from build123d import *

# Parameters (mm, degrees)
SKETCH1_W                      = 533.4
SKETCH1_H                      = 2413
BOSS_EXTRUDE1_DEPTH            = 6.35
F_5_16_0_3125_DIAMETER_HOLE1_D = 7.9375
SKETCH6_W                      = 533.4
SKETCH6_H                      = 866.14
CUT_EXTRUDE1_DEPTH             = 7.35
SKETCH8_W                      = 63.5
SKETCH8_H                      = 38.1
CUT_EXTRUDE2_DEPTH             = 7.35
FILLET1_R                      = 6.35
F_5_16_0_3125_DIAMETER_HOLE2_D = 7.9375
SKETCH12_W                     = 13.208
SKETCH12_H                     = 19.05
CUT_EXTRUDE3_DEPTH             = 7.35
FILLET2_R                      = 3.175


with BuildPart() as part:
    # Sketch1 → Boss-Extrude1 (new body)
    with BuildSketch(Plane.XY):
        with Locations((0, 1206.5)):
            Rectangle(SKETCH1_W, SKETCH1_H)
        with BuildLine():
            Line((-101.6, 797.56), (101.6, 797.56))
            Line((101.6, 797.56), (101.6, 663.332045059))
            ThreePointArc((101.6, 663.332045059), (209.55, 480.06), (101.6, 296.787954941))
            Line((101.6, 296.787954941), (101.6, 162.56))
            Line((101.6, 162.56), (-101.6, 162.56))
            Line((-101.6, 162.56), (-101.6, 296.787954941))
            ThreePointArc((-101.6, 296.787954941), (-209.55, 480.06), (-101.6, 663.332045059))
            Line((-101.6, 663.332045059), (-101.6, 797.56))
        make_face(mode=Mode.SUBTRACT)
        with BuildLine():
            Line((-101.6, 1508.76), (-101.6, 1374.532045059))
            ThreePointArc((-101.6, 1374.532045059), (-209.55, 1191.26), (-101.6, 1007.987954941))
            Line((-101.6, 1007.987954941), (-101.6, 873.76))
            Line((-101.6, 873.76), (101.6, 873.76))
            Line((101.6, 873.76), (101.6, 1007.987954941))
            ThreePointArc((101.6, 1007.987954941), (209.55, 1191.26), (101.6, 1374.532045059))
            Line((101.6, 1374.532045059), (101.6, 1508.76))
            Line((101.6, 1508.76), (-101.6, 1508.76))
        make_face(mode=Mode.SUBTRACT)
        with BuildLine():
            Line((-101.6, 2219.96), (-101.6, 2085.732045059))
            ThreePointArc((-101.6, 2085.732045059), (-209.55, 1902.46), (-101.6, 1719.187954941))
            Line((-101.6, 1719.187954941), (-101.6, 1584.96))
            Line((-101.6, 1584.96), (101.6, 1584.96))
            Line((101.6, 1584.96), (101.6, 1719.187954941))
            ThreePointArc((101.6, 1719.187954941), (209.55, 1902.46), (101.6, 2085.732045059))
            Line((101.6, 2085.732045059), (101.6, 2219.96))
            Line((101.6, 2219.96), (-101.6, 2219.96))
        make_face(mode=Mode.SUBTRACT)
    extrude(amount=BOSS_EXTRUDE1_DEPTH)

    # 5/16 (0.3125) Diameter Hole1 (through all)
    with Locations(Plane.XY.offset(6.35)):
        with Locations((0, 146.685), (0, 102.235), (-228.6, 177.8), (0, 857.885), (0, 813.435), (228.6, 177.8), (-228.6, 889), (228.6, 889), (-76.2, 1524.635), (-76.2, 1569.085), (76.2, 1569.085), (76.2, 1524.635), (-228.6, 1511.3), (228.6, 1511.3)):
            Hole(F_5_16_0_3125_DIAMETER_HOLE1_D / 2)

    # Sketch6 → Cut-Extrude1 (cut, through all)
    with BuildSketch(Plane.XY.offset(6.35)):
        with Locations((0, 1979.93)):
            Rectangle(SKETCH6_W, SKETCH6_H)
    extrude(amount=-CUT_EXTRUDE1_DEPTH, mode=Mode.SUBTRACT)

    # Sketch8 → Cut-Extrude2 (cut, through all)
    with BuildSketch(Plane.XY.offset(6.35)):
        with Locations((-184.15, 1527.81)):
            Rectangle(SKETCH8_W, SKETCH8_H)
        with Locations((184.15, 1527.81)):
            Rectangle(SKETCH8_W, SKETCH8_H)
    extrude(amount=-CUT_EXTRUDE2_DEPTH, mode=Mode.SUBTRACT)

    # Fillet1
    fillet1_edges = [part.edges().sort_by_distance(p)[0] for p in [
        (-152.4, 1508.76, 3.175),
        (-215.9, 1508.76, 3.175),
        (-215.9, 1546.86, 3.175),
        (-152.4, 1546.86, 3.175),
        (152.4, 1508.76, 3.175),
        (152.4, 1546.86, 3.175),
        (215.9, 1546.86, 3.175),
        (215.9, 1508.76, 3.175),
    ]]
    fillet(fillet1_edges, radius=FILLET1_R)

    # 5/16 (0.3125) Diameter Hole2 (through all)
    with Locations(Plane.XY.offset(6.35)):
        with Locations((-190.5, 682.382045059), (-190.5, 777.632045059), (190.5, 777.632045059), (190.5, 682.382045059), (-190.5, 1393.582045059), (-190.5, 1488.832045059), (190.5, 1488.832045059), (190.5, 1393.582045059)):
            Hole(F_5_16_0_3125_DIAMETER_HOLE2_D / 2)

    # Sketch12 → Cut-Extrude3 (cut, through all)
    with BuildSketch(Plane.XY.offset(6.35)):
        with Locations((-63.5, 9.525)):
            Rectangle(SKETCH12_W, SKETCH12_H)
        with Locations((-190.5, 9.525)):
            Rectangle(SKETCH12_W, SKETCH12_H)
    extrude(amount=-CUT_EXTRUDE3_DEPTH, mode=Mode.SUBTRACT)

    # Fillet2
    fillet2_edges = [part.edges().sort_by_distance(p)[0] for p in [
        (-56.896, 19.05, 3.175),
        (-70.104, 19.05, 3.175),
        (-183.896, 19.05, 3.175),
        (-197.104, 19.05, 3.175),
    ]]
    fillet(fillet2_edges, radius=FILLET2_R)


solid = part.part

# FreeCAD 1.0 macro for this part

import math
import FreeCAD as App
import Part
import Sketcher

V = App.Vector
Q = App.Units.Quantity


def edges_at(feature, points):
    """Names of the edges that pass closest to the given points."""
    edges = feature.Shape.Edges
    near = lambda p: min(range(len(edges)), key=lambda i: edges[i].distToShape(Part.Vertex(*p))[0])
    return sorted({f"Edge{near(p) + 1}" for p in points})

doc = App.newDocument("Part")
body = doc.addObject("PartDesign::Body", "Body")

# Sketch on XY plane
sketch1 = body.newObject("Sketcher::SketchObject", "Sketch")
sketch1.AttachmentSupport = (doc.getObject("XY_Plane"), [""])
sketch1.MapMode = "FlatFace"
sketch1.addGeometry([
    Part.LineSegment(V(-267, 2413, 0), V(-267, 0, 0)),  # 0
    Part.LineSegment(V(-267, 0, 0), V(267, 0, 0)),  # 1
    Part.LineSegment(V(267, 0, 0), V(267, 2413, 0)),  # 2
    Part.LineSegment(V(267, 2413, 0), V(-267, 2413, 0)),  # 3
    Part.LineSegment(V(-102, 663, 0), V(-102, 798, 0)),  # 4
    Part.LineSegment(V(-102, 798, 0), V(102, 798, 0)),  # 5
    Part.LineSegment(V(102, 798, 0), V(102, 663, 0)),  # 6
    Part.ArcOfCircle(Part.Circle(V(0, 480, 0), V(0, 0, 1), 210), math.radians(-61), math.radians(61)),  # 7
    Part.LineSegment(V(102, 297, 0), V(102, 163, 0)),  # 8
    Part.LineSegment(V(102, 163, 0), V(-102, 163, 0)),  # 9
    Part.LineSegment(V(-102, 163, 0), V(-102, 297, 0)),  # 10
    Part.ArcOfCircle(Part.Circle(V(0, 480, 0), V(0, 0, 1), 210), math.radians(119), math.radians(241)),  # 11
    Part.LineSegment(V(-102, 1375, 0), V(-102, 1509, 0)),  # 12
    Part.LineSegment(V(-102, 1509, 0), V(102, 1509, 0)),  # 13
    Part.LineSegment(V(102, 1509, 0), V(102, 1375, 0)),  # 14
    Part.ArcOfCircle(Part.Circle(V(0, 1191, 0), V(0, 0, 1), 210), math.radians(-61), math.radians(61)),  # 15
    Part.LineSegment(V(102, 1008, 0), V(102, 874, 0)),  # 16
    Part.LineSegment(V(102, 874, 0), V(-102, 874, 0)),  # 17
    Part.LineSegment(V(-102, 874, 0), V(-102, 1008, 0)),  # 18
    Part.ArcOfCircle(Part.Circle(V(0, 1191, 0), V(0, 0, 1), 210), math.radians(119), math.radians(241)),  # 19
    Part.LineSegment(V(-102, 2086, 0), V(-102, 2220, 0)),  # 20
    Part.LineSegment(V(-102, 2220, 0), V(102, 2220, 0)),  # 21
    Part.LineSegment(V(102, 2220, 0), V(102, 2086, 0)),  # 22
    Part.ArcOfCircle(Part.Circle(V(0, 1902, 0), V(0, 0, 1), 210), math.radians(-61), math.radians(61)),  # 23
    Part.LineSegment(V(102, 1719, 0), V(102, 1585, 0)),  # 24
    Part.LineSegment(V(102, 1585, 0), V(-102, 1585, 0)),  # 25
    Part.LineSegment(V(-102, 1585, 0), V(-102, 1719, 0)),  # 26
    Part.ArcOfCircle(Part.Circle(V(0, 1902, 0), V(0, 0, 1), 210), math.radians(119), math.radians(241)),  # 27
], False)
sketch1.addConstraint([
    Sketcher.Constraint("Coincident", 0, 2, 1, 1),
    Sketcher.Constraint("Coincident", 1, 2, 2, 1),
    Sketcher.Constraint("Coincident", 2, 2, 3, 1),
    Sketcher.Constraint("Coincident", 3, 2, 0, 1),
    Sketcher.Constraint("Coincident", 4, 2, 5, 1),
    Sketcher.Constraint("Coincident", 5, 2, 6, 1),
    Sketcher.Constraint("Coincident", 6, 2, 7, 2),
    Sketcher.Constraint("Coincident", 7, 1, 8, 1),
    Sketcher.Constraint("Coincident", 8, 2, 9, 1),
    Sketcher.Constraint("Coincident", 9, 2, 10, 1),
    Sketcher.Constraint("Coincident", 10, 2, 11, 2),
    Sketcher.Constraint("Coincident", 11, 1, 4, 1),
    Sketcher.Constraint("Coincident", 12, 2, 13, 1),
    Sketcher.Constraint("Coincident", 13, 2, 14, 1),
    Sketcher.Constraint("Coincident", 14, 2, 15, 2),
    Sketcher.Constraint("Coincident", 15, 1, 16, 1),
    Sketcher.Constraint("Coincident", 16, 2, 17, 1),
    Sketcher.Constraint("Coincident", 17, 2, 18, 1),
    Sketcher.Constraint("Coincident", 18, 2, 19, 2),
    Sketcher.Constraint("Coincident", 19, 1, 12, 1),
    Sketcher.Constraint("Coincident", 20, 2, 21, 1),
    Sketcher.Constraint("Coincident", 21, 2, 22, 1),
    Sketcher.Constraint("Coincident", 22, 2, 23, 2),
    Sketcher.Constraint("Coincident", 23, 1, 24, 1),
    Sketcher.Constraint("Coincident", 24, 2, 25, 1),
    Sketcher.Constraint("Coincident", 25, 2, 26, 1),
    Sketcher.Constraint("Coincident", 26, 2, 27, 2),
    Sketcher.Constraint("Coincident", 27, 1, 20, 1),
    Sketcher.Constraint("Vertical", 0),
    Sketcher.Constraint("Horizontal", 1),
    Sketcher.Constraint("Vertical", 2),
    Sketcher.Constraint("Horizontal", 3),
    Sketcher.Constraint("Vertical", 4),
    Sketcher.Constraint("Horizontal", 5),
    Sketcher.Constraint("Vertical", 6),
    Sketcher.Constraint("Vertical", 8),
    Sketcher.Constraint("Horizontal", 9),
    Sketcher.Constraint("Vertical", 10),
    Sketcher.Constraint("Vertical", 12),
    Sketcher.Constraint("Horizontal", 13),
    Sketcher.Constraint("Vertical", 14),
    Sketcher.Constraint("Vertical", 16),
    Sketcher.Constraint("Horizontal", 17),
    Sketcher.Constraint("Vertical", 18),
    Sketcher.Constraint("Vertical", 20),
    Sketcher.Constraint("Horizontal", 21),
    Sketcher.Constraint("Vertical", 22),
    Sketcher.Constraint("Vertical", 24),
    Sketcher.Constraint("Horizontal", 25),
    Sketcher.Constraint("Vertical", 26),
    Sketcher.Constraint("Coincident", 11, 3, 7, 3),
    Sketcher.Constraint("Coincident", 19, 3, 15, 3),
    Sketcher.Constraint("Coincident", 27, 3, 23, 3),
    Sketcher.Constraint("Equal", 7, 11),
    Sketcher.Constraint("Equal", 11, 15),
    Sketcher.Constraint("Equal", 15, 19),
    Sketcher.Constraint("Equal", 19, 23),
    Sketcher.Constraint("Equal", 23, 27),
    Sketcher.Constraint("Symmetric", 0, 2, 1, 2, -1, 1),
    Sketcher.Constraint("Symmetric", 7, 1, 10, 2, -2),
    Sketcher.Constraint("Symmetric", 15, 1, 18, 2, -2),
    Sketcher.Constraint("Symmetric", 23, 1, 26, 2, -2),
    Sketcher.Constraint("Horizontal", 6, 2, 11, 1),
    Sketcher.Constraint("Horizontal", 14, 2, 19, 1),
    Sketcher.Constraint("Horizontal", 22, 2, 27, 1),
    Sketcher.Constraint("Vertical", 6, 2, 7, 1),
    Sketcher.Constraint("Vertical", 11, 1, 12, 2),
    Sketcher.Constraint("Vertical", 14, 2, 15, 1),
    Sketcher.Constraint("Vertical", 19, 1, 20, 2),
    Sketcher.Constraint("Vertical", 22, 2, 23, 1),
    Sketcher.Constraint("Equal", 6, 8),
    Sketcher.Constraint("Equal", 10, 12),
    Sketcher.Constraint("Equal", 14, 16),
    Sketcher.Constraint("Equal", 18, 20),
    Sketcher.Constraint("Equal", 22, 24),
    Sketcher.Constraint("DistanceX", 1, 1, 1, 2, Q("21 in")),
    Sketcher.Constraint("DistanceX", 5, 1, 5, 2, Q("8 in")),
    Sketcher.Constraint("DistanceY", 0, 2, 0, 1, Q("95 in")),
    Sketcher.Constraint("Radius", 7, Q("8.25 in")),
    Sketcher.Constraint("DistanceY", 7, 3, 15, 3, Q("28 in")),
    Sketcher.Constraint("DistanceY", 15, 3, 23, 3, Q("28 in")),
    Sketcher.Constraint("DistanceY", 5, 2, 16, 2, Q("3 in")),
    Sketcher.Constraint("DistanceY", -1, 1, 7, 3, Q("18.9 in")),
])
pad1 = body.newObject("PartDesign::Pad", "Pad")
pad1.Profile = sketch1
pad1.Length = Q("0.25 in")

# Sketch on XY plane
sketch2 = body.newObject("Sketcher::SketchObject", "Sketch001")
sketch2.AttachmentSupport = (doc.getObject("XY_Plane"), [""])
sketch2.MapMode = "FlatFace"
sketch2.AttachmentOffset = App.Placement(V(0, 0, 0.25 * 25.4), App.Rotation())
sketch2.addGeometry([
    Part.Circle(V(0, 146.7, 0), V(0, 0, 1), 4),  # 0
    Part.Circle(V(0, 102.2, 0), V(0, 0, 1), 4),  # 1
    Part.Circle(V(-228.6, 177.8, 0), V(0, 0, 1), 4),  # 2
    Part.Circle(V(0, 857.9, 0), V(0, 0, 1), 4),  # 3
    Part.Circle(V(0, 813.4, 0), V(0, 0, 1), 4),  # 4
    Part.Circle(V(228.6, 177.8, 0), V(0, 0, 1), 4),  # 5
    Part.Circle(V(-228.6, 889, 0), V(0, 0, 1), 4),  # 6
    Part.Circle(V(228.6, 889, 0), V(0, 0, 1), 4),  # 7
    Part.Circle(V(-76.2, 1524.6, 0), V(0, 0, 1), 4),  # 8
    Part.Circle(V(-76.2, 1569.1, 0), V(0, 0, 1), 4),  # 9
    Part.Circle(V(76.2, 1569.1, 0), V(0, 0, 1), 4),  # 10
    Part.Circle(V(76.2, 1524.6, 0), V(0, 0, 1), 4),  # 11
    Part.Circle(V(-228.6, 1511.3, 0), V(0, 0, 1), 4),  # 12
    Part.Circle(V(228.6, 1511.3, 0), V(0, 0, 1), 4),  # 13
], False)
sketch2.addConstraint([
    Sketcher.Constraint("Equal", 0, 1),
    Sketcher.Constraint("Equal", 1, 2),
    Sketcher.Constraint("Equal", 2, 3),
    Sketcher.Constraint("Equal", 3, 4),
    Sketcher.Constraint("Equal", 4, 5),
    Sketcher.Constraint("Equal", 5, 6),
    Sketcher.Constraint("Equal", 6, 7),
    Sketcher.Constraint("Equal", 7, 8),
    Sketcher.Constraint("Equal", 8, 9),
    Sketcher.Constraint("Equal", 9, 10),
    Sketcher.Constraint("Equal", 10, 11),
    Sketcher.Constraint("Equal", 11, 12),
    Sketcher.Constraint("Equal", 12, 13),
    Sketcher.Constraint("Symmetric", 2, 3, 5, 3, -2),
    Sketcher.Constraint("Symmetric", 6, 3, 7, 3, -2),
    Sketcher.Constraint("Symmetric", 9, 3, 10, 3, -2),
    Sketcher.Constraint("Symmetric", 8, 3, 11, 3, -2),
    Sketcher.Constraint("Symmetric", 12, 3, 13, 3, -2),
    Sketcher.Constraint("PointOnObject", 0, 3, -2),
    Sketcher.Constraint("PointOnObject", 1, 3, -2),
    Sketcher.Constraint("PointOnObject", 3, 3, -2),
    Sketcher.Constraint("PointOnObject", 4, 3, -2),
    Sketcher.Constraint("Vertical", 2, 3, 6, 3),
    Sketcher.Constraint("Vertical", 8, 3, 9, 3),
    Sketcher.Constraint("Vertical", 6, 3, 12, 3),
    Sketcher.Constraint("Diameter", 0, Q("0.3125 in")),
    Sketcher.Constraint("DistanceX", 2, 3, -1, 1, Q("9 in")),
    Sketcher.Constraint("DistanceY", -1, 1, 2, 3, Q("7 in")),
    Sketcher.Constraint("DistanceY", -1, 1, 6, 3, Q("35 in")),
    Sketcher.Constraint("DistanceX", 8, 3, -1, 1, Q("3 in")),
    Sketcher.Constraint("DistanceY", 0, 3, 3, 3, Q("28 in")),
    Sketcher.Constraint("DistanceY", 1, 3, 4, 3, Q("28 in")),
    Sketcher.Constraint("DistanceY", 4, 3, 8, 3, Q("28 in")),
    Sketcher.Constraint("DistanceY", 3, 3, 9, 3, Q("28 in")),
    Sketcher.Constraint("DistanceY", -1, 1, 12, 3, Q("59.5 in")),
    Sketcher.Constraint("DistanceY", 1, 3, 0, 3, Q("1.75 in")),
    Sketcher.Constraint("DistanceY", -1, 1, 0, 3, Q("5.775 in")),
])
doc.recompute()
hole = body.newObject("PartDesign::Hole", "Hole")
hole.Profile = sketch2
hole.ThreadType = "None"
hole.Diameter = Q("0.3125 in")
hole.DepthType = "ThroughAll"

# Sketch on XY plane
sketch3 = body.newObject("Sketcher::SketchObject", "Sketch002")
sketch3.AttachmentSupport = (doc.getObject("XY_Plane"), [""])
sketch3.MapMode = "FlatFace"
sketch3.AttachmentOffset = App.Placement(V(0, 0, 0.25 * 25.4), App.Rotation())
sketch3.addGeometry([
    Part.LineSegment(V(-267, 2413, 0), V(-267, 1547, 0)),
    Part.LineSegment(V(-267, 1547, 0), V(267, 1547, 0)),
    Part.LineSegment(V(267, 1547, 0), V(267, 2413, 0)),
    Part.LineSegment(V(267, 2413, 0), V(-267, 2413, 0)),
], False)
sketch3.addConstraint([
    Sketcher.Constraint("Coincident", 0, 2, 1, 1),
    Sketcher.Constraint("Coincident", 1, 2, 2, 1),
    Sketcher.Constraint("Coincident", 2, 2, 3, 1),
    Sketcher.Constraint("Coincident", 3, 2, 0, 1),
    Sketcher.Constraint("Vertical", 0),
    Sketcher.Constraint("Horizontal", 1),
    Sketcher.Constraint("Vertical", 2),
    Sketcher.Constraint("Horizontal", 3),
    Sketcher.Constraint("DistanceX", 1, 1, 1, 2, Q("21 in")),
    Sketcher.Constraint("DistanceY", 0, 2, 0, 1, Q("34.1 in")),
    Sketcher.Constraint("DistanceY", -1, 1, 2, 2, Q("95 in")),
    Sketcher.Constraint("DistanceX", 0, 2, -1, 1, Q("10.5 in")),
])
pocket1 = body.newObject("PartDesign::Pocket", "Pocket")
pocket1.Profile = sketch3
pocket1.Type = "ThroughAll"

# Sketch on XY plane
sketch4 = body.newObject("Sketcher::SketchObject", "Sketch003")
sketch4.AttachmentSupport = (doc.getObject("XY_Plane"), [""])
sketch4.MapMode = "FlatFace"
sketch4.AttachmentOffset = App.Placement(V(0, 0, 0.25 * 25.4), App.Rotation())
sketch4.addGeometry([
    Part.LineSegment(V(-216, 1547, 0), V(-216, 1509, 0)),  # 0
    Part.LineSegment(V(-216, 1509, 0), V(-152, 1509, 0)),  # 1
    Part.LineSegment(V(-152, 1509, 0), V(-152, 1547, 0)),  # 2
    Part.LineSegment(V(-152, 1547, 0), V(-216, 1547, 0)),  # 3
    Part.LineSegment(V(152, 1547, 0), V(152, 1509, 0)),  # 4
    Part.LineSegment(V(152, 1509, 0), V(216, 1509, 0)),  # 5
    Part.LineSegment(V(216, 1509, 0), V(216, 1547, 0)),  # 6
    Part.LineSegment(V(216, 1547, 0), V(152, 1547, 0)),  # 7
], False)
sketch4.addConstraint([
    Sketcher.Constraint("Coincident", 0, 2, 1, 1),
    Sketcher.Constraint("Coincident", 1, 2, 2, 1),
    Sketcher.Constraint("Coincident", 2, 2, 3, 1),
    Sketcher.Constraint("Coincident", 3, 2, 0, 1),
    Sketcher.Constraint("Coincident", 4, 2, 5, 1),
    Sketcher.Constraint("Coincident", 5, 2, 6, 1),
    Sketcher.Constraint("Coincident", 6, 2, 7, 1),
    Sketcher.Constraint("Coincident", 7, 2, 4, 1),
    Sketcher.Constraint("Vertical", 0),
    Sketcher.Constraint("Horizontal", 1),
    Sketcher.Constraint("Vertical", 2),
    Sketcher.Constraint("Horizontal", 3),
    Sketcher.Constraint("Vertical", 4),
    Sketcher.Constraint("Horizontal", 5),
    Sketcher.Constraint("Vertical", 6),
    Sketcher.Constraint("Horizontal", 7),
    Sketcher.Constraint("Symmetric", 1, 2, 4, 2, -2),
    Sketcher.Constraint("Symmetric", 3, 2, 6, 2, -2),
    Sketcher.Constraint("DistanceX", 1, 1, 1, 2, Q("2.5 in")),
    Sketcher.Constraint("DistanceY", 0, 2, 0, 1, Q("1.5 in")),
    Sketcher.Constraint("DistanceX", 1, 2, -1, 1, Q("6 in")),
    Sketcher.Constraint("DistanceY", -1, 1, 0, 2, Q("59.4 in")),
])
pocket2 = body.newObject("PartDesign::Pocket", "Pocket001")
pocket2.Profile = sketch4
pocket2.Type = "ThroughAll"
doc.recompute()

fillet = body.newObject("PartDesign::Fillet", "Fillet")
fillet.Base = (pocket2, edges_at(pocket2, [
    (-152.4, 1508.76, 3.175),
    (-215.9, 1508.76, 3.175),
    (-215.9, 1546.86, 3.175),
    (-152.4, 1546.86, 3.175),
    (152.4, 1508.76, 3.175),
    (152.4, 1546.86, 3.175),
    (215.9, 1546.86, 3.175),
    (215.9, 1508.76, 3.175),
]))
fillet.Radius = Q("0.25 in")

# Sketch on XY plane
sketch5 = body.newObject("Sketcher::SketchObject", "Sketch004")
sketch5.AttachmentSupport = (doc.getObject("XY_Plane"), [""])
sketch5.MapMode = "FlatFace"
sketch5.AttachmentOffset = App.Placement(V(0, 0, 0.25 * 25.4), App.Rotation())
sketch5.addGeometry([
    Part.Circle(V(-190.5, 682.4, 0), V(0, 0, 1), 4),  # 0
    Part.Circle(V(-190.5, 777.6, 0), V(0, 0, 1), 4),  # 1
    Part.Circle(V(190.5, 777.6, 0), V(0, 0, 1), 4),  # 2
    Part.Circle(V(190.5, 682.4, 0), V(0, 0, 1), 4),  # 3
    Part.Circle(V(-190.5, 1393.6, 0), V(0, 0, 1), 4),  # 4
    Part.Circle(V(-190.5, 1488.8, 0), V(0, 0, 1), 4),  # 5
    Part.Circle(V(190.5, 1488.8, 0), V(0, 0, 1), 4),  # 6
    Part.Circle(V(190.5, 1393.6, 0), V(0, 0, 1), 4),  # 7
], False)
sketch5.addConstraint([
    Sketcher.Constraint("Equal", 0, 1),
    Sketcher.Constraint("Equal", 1, 2),
    Sketcher.Constraint("Equal", 2, 3),
    Sketcher.Constraint("Equal", 3, 4),
    Sketcher.Constraint("Equal", 4, 5),
    Sketcher.Constraint("Equal", 5, 6),
    Sketcher.Constraint("Equal", 6, 7),
    Sketcher.Constraint("Symmetric", 1, 3, 2, 3, -2),
    Sketcher.Constraint("Symmetric", 0, 3, 3, 3, -2),
    Sketcher.Constraint("Symmetric", 5, 3, 6, 3, -2),
    Sketcher.Constraint("Symmetric", 4, 3, 7, 3, -2),
    Sketcher.Constraint("Vertical", 0, 3, 1, 3),
    Sketcher.Constraint("Vertical", 1, 3, 4, 3),
    Sketcher.Constraint("Vertical", 4, 3, 5, 3),
    Sketcher.Constraint("Diameter", 0, Q("0.3125 in")),
    Sketcher.Constraint("DistanceX", 1, 3, 2, 3, Q("15 in")),
    Sketcher.Constraint("DistanceY", 0, 3, 4, 3, Q("28 in")),
    Sketcher.Constraint("DistanceY", 1, 3, 5, 3, Q("28 in")),
    Sketcher.Constraint("DistanceY", 0, 3, 1, 3, Q("3.75 in")),
    Sketcher.Constraint("DistanceY", -1, 1, 0, 3, Q("682.382045 mm")),
])
doc.recompute()
hole2 = body.newObject("PartDesign::Hole", "Hole001")
hole2.Profile = sketch5
hole2.ThreadType = "None"
hole2.Diameter = Q("0.3125 in")
hole2.DepthType = "ThroughAll"

# Sketch on XY plane
sketch6 = body.newObject("Sketcher::SketchObject", "Sketch005")
sketch6.AttachmentSupport = (doc.getObject("XY_Plane"), [""])
sketch6.MapMode = "FlatFace"
sketch6.AttachmentOffset = App.Placement(V(0, 0, 0.25 * 25.4), App.Rotation())
sketch6.addGeometry([
    Part.LineSegment(V(-70, 19, 0), V(-70, 0, 0)),  # 0
    Part.LineSegment(V(-70, 0, 0), V(-57, 0, 0)),  # 1
    Part.LineSegment(V(-57, 0, 0), V(-57, 19, 0)),  # 2
    Part.LineSegment(V(-57, 19, 0), V(-70, 19, 0)),  # 3
    Part.LineSegment(V(-197, 19, 0), V(-197, 0, 0)),  # 4
    Part.LineSegment(V(-197, 0, 0), V(-184, 0, 0)),  # 5
    Part.LineSegment(V(-184, 0, 0), V(-184, 19, 0)),  # 6
    Part.LineSegment(V(-184, 19, 0), V(-197, 19, 0)),  # 7
], False)
sketch6.addConstraint([
    Sketcher.Constraint("Coincident", 0, 2, 1, 1),
    Sketcher.Constraint("Coincident", 1, 2, 2, 1),
    Sketcher.Constraint("Coincident", 2, 2, 3, 1),
    Sketcher.Constraint("Coincident", 3, 2, 0, 1),
    Sketcher.Constraint("Coincident", 4, 2, 5, 1),
    Sketcher.Constraint("Coincident", 5, 2, 6, 1),
    Sketcher.Constraint("Coincident", 6, 2, 7, 1),
    Sketcher.Constraint("Coincident", 7, 2, 4, 1),
    Sketcher.Constraint("Vertical", 0),
    Sketcher.Constraint("Horizontal", 1),
    Sketcher.Constraint("Vertical", 2),
    Sketcher.Constraint("Horizontal", 3),
    Sketcher.Constraint("Vertical", 4),
    Sketcher.Constraint("Horizontal", 5),
    Sketcher.Constraint("Vertical", 6),
    Sketcher.Constraint("Horizontal", 7),
    Sketcher.Constraint("PointOnObject", 0, 2, -1),
    Sketcher.Constraint("PointOnObject", 4, 2, -1),
    Sketcher.Constraint("Horizontal", 3, 2, 6, 2),
    Sketcher.Constraint("Equal", 3, 5),
    Sketcher.Constraint("DistanceX", 4, 2, 0, 2, Q("5 in")),
    Sketcher.Constraint("DistanceX", 1, 1, 1, 2, Q("0.52 in")),
    Sketcher.Constraint("DistanceY", 0, 2, 0, 1, Q("0.75 in")),
    Sketcher.Constraint("DistanceX", 0, 2, -1, 1, Q("2.76 in")),
])
pocket3 = body.newObject("PartDesign::Pocket", "Pocket002")
pocket3.Profile = sketch6
pocket3.Type = "ThroughAll"
doc.recompute()

fillet2 = body.newObject("PartDesign::Fillet", "Fillet001")
fillet2.Base = (pocket3, edges_at(pocket3, [
    (-56.896, 19.05, 3.175),
    (-70.104, 19.05, 3.175),
    (-183.896, 19.05, 3.175),
    (-197.104, 19.05, 3.175),
]))
fillet2.Radius = Q("0.125 in")

doc.recompute()
